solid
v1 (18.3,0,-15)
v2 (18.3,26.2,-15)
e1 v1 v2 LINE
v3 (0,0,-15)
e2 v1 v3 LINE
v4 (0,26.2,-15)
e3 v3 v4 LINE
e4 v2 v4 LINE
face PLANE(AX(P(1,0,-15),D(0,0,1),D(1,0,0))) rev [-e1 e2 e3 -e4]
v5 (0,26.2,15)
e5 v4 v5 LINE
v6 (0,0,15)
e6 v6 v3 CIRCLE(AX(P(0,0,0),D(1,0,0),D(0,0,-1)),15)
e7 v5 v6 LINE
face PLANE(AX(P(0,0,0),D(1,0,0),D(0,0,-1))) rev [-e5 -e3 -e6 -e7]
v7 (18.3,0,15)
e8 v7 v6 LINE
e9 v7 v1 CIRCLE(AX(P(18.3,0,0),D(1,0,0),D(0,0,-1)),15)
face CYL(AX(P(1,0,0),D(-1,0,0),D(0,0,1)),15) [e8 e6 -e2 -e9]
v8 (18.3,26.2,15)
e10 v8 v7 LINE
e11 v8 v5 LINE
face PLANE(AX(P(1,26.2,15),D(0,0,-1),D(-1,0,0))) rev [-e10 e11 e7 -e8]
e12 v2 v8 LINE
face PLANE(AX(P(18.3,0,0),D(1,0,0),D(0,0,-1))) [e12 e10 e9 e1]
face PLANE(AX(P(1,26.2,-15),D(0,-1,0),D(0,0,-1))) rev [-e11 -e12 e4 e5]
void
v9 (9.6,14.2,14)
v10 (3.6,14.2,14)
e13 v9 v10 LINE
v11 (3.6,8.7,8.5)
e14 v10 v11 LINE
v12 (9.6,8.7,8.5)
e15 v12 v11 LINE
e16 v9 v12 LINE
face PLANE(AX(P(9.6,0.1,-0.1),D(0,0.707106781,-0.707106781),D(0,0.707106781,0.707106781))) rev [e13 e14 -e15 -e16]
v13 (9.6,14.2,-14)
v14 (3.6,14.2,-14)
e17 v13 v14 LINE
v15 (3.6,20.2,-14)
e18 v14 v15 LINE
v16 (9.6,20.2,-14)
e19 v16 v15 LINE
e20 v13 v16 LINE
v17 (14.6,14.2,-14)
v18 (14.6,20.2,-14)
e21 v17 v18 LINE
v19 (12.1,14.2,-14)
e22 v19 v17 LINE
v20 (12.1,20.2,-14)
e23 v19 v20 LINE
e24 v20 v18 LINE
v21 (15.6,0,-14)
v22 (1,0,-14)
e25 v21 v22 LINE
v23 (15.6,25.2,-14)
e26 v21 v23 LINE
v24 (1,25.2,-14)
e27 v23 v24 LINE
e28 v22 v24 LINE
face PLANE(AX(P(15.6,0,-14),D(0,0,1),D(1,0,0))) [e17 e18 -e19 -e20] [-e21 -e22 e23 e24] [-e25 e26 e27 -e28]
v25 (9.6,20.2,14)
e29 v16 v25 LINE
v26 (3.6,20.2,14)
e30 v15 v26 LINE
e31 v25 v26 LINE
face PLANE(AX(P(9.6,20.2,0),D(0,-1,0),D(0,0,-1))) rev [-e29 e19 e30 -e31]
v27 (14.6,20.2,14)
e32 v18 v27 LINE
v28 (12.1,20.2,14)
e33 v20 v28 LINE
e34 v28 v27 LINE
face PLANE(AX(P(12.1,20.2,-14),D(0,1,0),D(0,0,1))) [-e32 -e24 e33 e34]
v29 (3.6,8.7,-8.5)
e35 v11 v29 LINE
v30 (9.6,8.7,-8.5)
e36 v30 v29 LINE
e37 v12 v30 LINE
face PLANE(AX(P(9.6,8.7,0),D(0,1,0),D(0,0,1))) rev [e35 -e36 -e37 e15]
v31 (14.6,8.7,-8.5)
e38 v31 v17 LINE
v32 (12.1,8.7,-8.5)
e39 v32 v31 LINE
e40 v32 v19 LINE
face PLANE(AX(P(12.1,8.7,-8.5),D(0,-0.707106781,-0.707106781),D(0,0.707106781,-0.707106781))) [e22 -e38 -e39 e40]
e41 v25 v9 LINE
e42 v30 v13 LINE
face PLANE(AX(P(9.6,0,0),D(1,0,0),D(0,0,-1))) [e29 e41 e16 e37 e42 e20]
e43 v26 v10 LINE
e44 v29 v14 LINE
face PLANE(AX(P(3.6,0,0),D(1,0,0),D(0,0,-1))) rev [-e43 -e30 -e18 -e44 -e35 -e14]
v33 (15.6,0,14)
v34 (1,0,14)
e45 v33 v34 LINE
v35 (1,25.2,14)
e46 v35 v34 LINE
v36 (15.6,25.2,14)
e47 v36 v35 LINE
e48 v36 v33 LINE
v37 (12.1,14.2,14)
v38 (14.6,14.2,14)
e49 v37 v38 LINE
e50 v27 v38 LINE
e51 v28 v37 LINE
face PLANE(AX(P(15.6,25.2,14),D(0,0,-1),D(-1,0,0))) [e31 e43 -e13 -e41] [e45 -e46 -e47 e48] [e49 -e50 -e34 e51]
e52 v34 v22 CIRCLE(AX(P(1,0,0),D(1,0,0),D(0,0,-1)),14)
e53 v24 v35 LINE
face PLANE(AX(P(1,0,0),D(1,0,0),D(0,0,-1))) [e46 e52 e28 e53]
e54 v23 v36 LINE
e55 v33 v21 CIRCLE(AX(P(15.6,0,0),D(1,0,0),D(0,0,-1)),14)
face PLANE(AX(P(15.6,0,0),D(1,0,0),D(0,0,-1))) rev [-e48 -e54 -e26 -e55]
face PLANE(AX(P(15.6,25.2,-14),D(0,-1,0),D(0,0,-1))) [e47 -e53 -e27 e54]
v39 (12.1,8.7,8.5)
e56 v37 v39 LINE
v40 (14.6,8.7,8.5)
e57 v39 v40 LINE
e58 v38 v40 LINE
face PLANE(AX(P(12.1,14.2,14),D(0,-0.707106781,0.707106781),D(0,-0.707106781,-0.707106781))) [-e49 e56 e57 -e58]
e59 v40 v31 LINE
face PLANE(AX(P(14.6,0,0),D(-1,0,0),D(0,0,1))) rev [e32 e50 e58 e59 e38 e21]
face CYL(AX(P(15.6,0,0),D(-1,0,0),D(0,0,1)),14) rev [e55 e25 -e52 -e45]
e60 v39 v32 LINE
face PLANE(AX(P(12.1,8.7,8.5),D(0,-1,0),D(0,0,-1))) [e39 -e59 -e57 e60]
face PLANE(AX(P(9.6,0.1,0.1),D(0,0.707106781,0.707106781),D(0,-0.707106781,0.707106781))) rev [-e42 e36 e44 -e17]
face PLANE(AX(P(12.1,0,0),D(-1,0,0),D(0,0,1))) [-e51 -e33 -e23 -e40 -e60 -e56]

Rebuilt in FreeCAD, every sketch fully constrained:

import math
import FreeCAD as App
import Part
import Sketcher
from FreeCAD import Vector
Q = App.Units.Quantity

doc = App.newDocument("Part")
body = doc.addObject("PartDesign::Body", "Body")

# Sketch on YZ plane
sketch1 = doc.addObject("Sketcher::SketchObject", "Sketch")
body.addObject(sketch1)
sketch1.AttachmentSupport = (doc.YZ_Plane, [""])
sketch1.MapMode = "FlatFace"
sketch1.addGeometry([
    Part.LineSegment(Vector(0, -15, 0), Vector(26.2, -15, 0)),
    Part.LineSegment(Vector(26.2, -15, 0), Vector(26.2, 15, 0)),
    Part.LineSegment(Vector(26.2, 15, 0), Vector(0, 15, 0)),
    Part.ArcOfCircle(Part.Circle(Vector(0, 0, 0), Vector(0, 0, 1), 15), math.radians(90), math.radians(270)),
], False)
sketch1.addConstraint([
    Sketcher.Constraint("Coincident", 0, 2, 1, 1),
    Sketcher.Constraint("Coincident", 1, 2, 2, 1),
    Sketcher.Constraint("Tangent", 2, 2, 3, 1),
    Sketcher.Constraint("Tangent", 3, 2, 0, 1),
    Sketcher.Constraint("Horizontal", 0),
    Sketcher.Constraint("Vertical", 1),
    Sketcher.Constraint("Horizontal", 2),
    Sketcher.Constraint("Coincident", 3, 3, -1, 1),
    Sketcher.Constraint("Radius", 3, Q("15 mm")),
    Sketcher.Constraint("DistanceX", 0, 1, 0, 2, Q("26.2 mm")),
])
pad1 = doc.addObject("PartDesign::Pad", "Pad")
body.addObject(pad1)
pad1.Profile = sketch1
pad1.Length = 1

# Sketch on YZ plane
sketch2 = doc.addObject("Sketcher::SketchObject", "Sketch001")
body.addObject(sketch2)
sketch2.AttachmentSupport = (doc.YZ_Plane, [""])
sketch2.MapMode = "FlatFace"
sketch2.AttachmentOffset = App.Placement(Vector(0, 0, 1), App.Rotation())
sketch2.addGeometry([
    Part.LineSegment(Vector(0, -15, 0), Vector(26.2, -15, 0)),  # 0
    Part.LineSegment(Vector(26.2, -15, 0), Vector(26.2, 15, 0)),  # 1
    Part.LineSegment(Vector(26.2, 15, 0), Vector(0, 15, 0)),  # 2
    Part.ArcOfCircle(Part.Circle(Vector(0, 0, 0), Vector(0, 0, 1), 15), math.radians(90), math.radians(270)),  # 3
    Part.LineSegment(Vector(25.2, -14, 0), Vector(0, -14, 0)),  # 4
    Part.ArcOfCircle(Part.Circle(Vector(0, 0, 0), Vector(0, 0, 1), 14), math.radians(90), math.radians(270)),  # 5
    Part.LineSegment(Vector(0, 14, 0), Vector(25.2, 14, 0)),  # 6
    Part.LineSegment(Vector(25.2, 14, 0), Vector(25.2, -14, 0)),  # 7
], False)
sketch2.addConstraint([
    Sketcher.Constraint("Coincident", 0, 2, 1, 1),
    Sketcher.Constraint("Coincident", 1, 2, 2, 1),
    Sketcher.Constraint("Tangent", 2, 2, 3, 1),
    Sketcher.Constraint("Tangent", 3, 2, 0, 1),
    Sketcher.Constraint("Tangent", 4, 2, 5, 2),
    Sketcher.Constraint("Tangent", 5, 1, 6, 1),
    Sketcher.Constraint("Coincident", 6, 2, 7, 1),
    Sketcher.Constraint("Coincident", 7, 2, 4, 1),
    Sketcher.Constraint("Horizontal", 0),
    Sketcher.Constraint("Vertical", 1),
    Sketcher.Constraint("Horizontal", 2),
    Sketcher.Constraint("Horizontal", 4),
    Sketcher.Constraint("Horizontal", 6),
    Sketcher.Constraint("Vertical", 7),
    Sketcher.Constraint("Coincident", 3, 3, -1, 1),
    Sketcher.Constraint("Coincident", 5, 3, -1, 1),
    Sketcher.Constraint("Radius", 3, Q("15 mm")),
    Sketcher.Constraint("Radius", 5, Q("14 mm")),
    Sketcher.Constraint("DistanceX", 0, 1, 0, 2, Q("26.2 mm")),
    Sketcher.Constraint("DistanceX", 4, 2, 4, 1, Q("25.2 mm")),
])
pad2 = doc.addObject("PartDesign::Pad", "Pad001")
body.addObject(pad2)
pad2.Profile = sketch2
pad2.Length = 14.6

# Sketch on YZ plane
sketch3 = doc.addObject("Sketcher::SketchObject", "Sketch002")
body.addObject(sketch3)
sketch3.AttachmentSupport = (doc.YZ_Plane, [""])
sketch3.MapMode = "FlatFace"
sketch3.AttachmentOffset = App.Placement(Vector(0, 0, 3.6), App.Rotation())
sketch3.addGeometry([
    Part.LineSegment(Vector(8.7, -8.5, 0), Vector(14.2, -14, 0)),  # 0
    Part.LineSegment(Vector(14.2, -14, 0), Vector(20.2, -14, 0)),  # 1
    Part.LineSegment(Vector(20.2, -14, 0), Vector(20.2, 14, 0)),  # 2
    Part.LineSegment(Vector(20.2, 14, 0), Vector(14.2, 14, 0)),  # 3
    Part.LineSegment(Vector(14.2, 14, 0), Vector(8.7, 8.5, 0)),  # 4
    Part.LineSegment(Vector(8.7, 8.5, 0), Vector(8.7, -8.5, 0)),  # 5
], False)
sketch3.addConstraint([
    Sketcher.Constraint("Coincident", 0, 2, 1, 1),
    Sketcher.Constraint("Coincident", 1, 2, 2, 1),
    Sketcher.Constraint("Coincident", 2, 2, 3, 1),
    Sketcher.Constraint("Coincident", 3, 2, 4, 1),
    Sketcher.Constraint("Coincident", 4, 2, 5, 1),
    Sketcher.Constraint("Coincident", 5, 2, 0, 1),
    Sketcher.Constraint("Horizontal", 1),
    Sketcher.Constraint("Vertical", 2),
    Sketcher.Constraint("Horizontal", 3),
    Sketcher.Constraint("Vertical", 5),
    Sketcher.Constraint("Symmetric", 0, 2, 3, 2, -1),
    Sketcher.Constraint("Perpendicular", 0, 4),
    Sketcher.Constraint("Equal", 0, 4),
    Sketcher.Constraint("DistanceX", 1, 1, 1, 2, Q("6 mm")),
    Sketcher.Constraint("DistanceY", 2, 1, 2, 2, Q("28 mm")),
    Sketcher.Constraint("DistanceY", 5, 2, 5, 1, Q("17 mm")),
    Sketcher.Constraint("DistanceX", -1, 1, 0, 2, Q("14.2 mm")),
])
pad3 = doc.addObject("PartDesign::Pad", "Pad002")
body.addObject(pad3)
pad3.Profile = sketch3
pad3.Length = 6

# Sketch on YZ plane
sketch4 = doc.addObject("Sketcher::SketchObject", "Sketch003")
body.addObject(sketch4)
sketch4.AttachmentSupport = (doc.YZ_Plane, [""])
sketch4.MapMode = "FlatFace"
sketch4.AttachmentOffset = App.Placement(Vector(0, 0, 14.6), App.Rotation())
sketch4.addGeometry([
    Part.LineSegment(Vector(14.2, -14, 0), Vector(20.2, -14, 0)),  # 0
    Part.LineSegment(Vector(20.2, -14, 0), Vector(20.2, 14, 0)),  # 1
    Part.LineSegment(Vector(20.2, 14, 0), Vector(14.2, 14, 0)),  # 2
    Part.LineSegment(Vector(14.2, 14, 0), Vector(8.7, 8.5, 0)),  # 3
    Part.LineSegment(Vector(8.7, 8.5, 0), Vector(8.7, -8.5, 0)),  # 4
    Part.LineSegment(Vector(8.7, -8.5, 0), Vector(14.2, -14, 0)),  # 5
], False)
sketch4.addConstraint([
    Sketcher.Constraint("Coincident", 0, 2, 1, 1),
    Sketcher.Constraint("Coincident", 1, 2, 2, 1),
    Sketcher.Constraint("Coincident", 2, 2, 3, 1),
    Sketcher.Constraint("Coincident", 3, 2, 4, 1),
    Sketcher.Constraint("Coincident", 4, 2, 5, 1),
    Sketcher.Constraint("Coincident", 5, 2, 0, 1),
    Sketcher.Constraint("Horizontal", 0),
    Sketcher.Constraint("Vertical", 1),
    Sketcher.Constraint("Horizontal", 2),
    Sketcher.Constraint("Vertical", 4),
    Sketcher.Constraint("Symmetric", 2, 2, 5, 2, -1),
    Sketcher.Constraint("Perpendicular", 3, 5),
    Sketcher.Constraint("Equal", 3, 5),
    Sketcher.Constraint("DistanceX", 0, 1, 0, 2, Q("6 mm")),
    Sketcher.Constraint("DistanceY", 1, 1, 1, 2, Q("28 mm")),
    Sketcher.Constraint("DistanceY", 4, 2, 4, 1, Q("17 mm")),
    Sketcher.Constraint("DistanceX", -1, 1, 0, 2, Q("20.2 mm")),
])
pad4 = doc.addObject("PartDesign::Pad", "Pad003")
body.addObject(pad4)
pad4.Profile = sketch4
pad4.Length = 2.5
pad4.Reversed = True

# Sketch on YZ plane
sketch5 = doc.addObject("Sketcher::SketchObject", "Sketch004")
body.addObject(sketch5)
sketch5.AttachmentSupport = (doc.YZ_Plane, [""])
sketch5.MapMode = "FlatFace"
sketch5.AttachmentOffset = App.Placement(Vector(0, 0, 15.6), App.Rotation())
sketch5.addGeometry([
    Part.LineSegment(Vector(26.2, 15, 0), Vector(0, 15, 0)),
    Part.ArcOfCircle(Part.Circle(Vector(0, 0, 0), Vector(0, 0, 1), 15), math.radians(90), math.radians(270)),
    Part.LineSegment(Vector(0, -15, 0), Vector(26.2, -15, 0)),
    Part.LineSegment(Vector(26.2, -15, 0), Vector(26.2, 15, 0)),
], False)
sketch5.addConstraint([
    Sketcher.Constraint("Tangent", 0, 2, 1, 1),
    Sketcher.Constraint("Tangent", 1, 2, 2, 1),
    Sketcher.Constraint("Coincident", 2, 2, 3, 1),
    Sketcher.Constraint("Coincident", 3, 2, 0, 1),
    Sketcher.Constraint("Horizontal", 0),
    Sketcher.Constraint("Horizontal", 2),
    Sketcher.Constraint("Vertical", 3),
    Sketcher.Constraint("Coincident", 1, 3, -1, 1),
    Sketcher.Constraint("Radius", 1, Q("15 mm")),
    Sketcher.Constraint("DistanceX", 0, 2, 0, 1, Q("26.2 mm")),
])
pad5 = doc.addObject("PartDesign::Pad", "Pad004")
body.addObject(pad5)
pad5.Profile = sketch5
pad5.Length = 2.7

doc.recompute()
